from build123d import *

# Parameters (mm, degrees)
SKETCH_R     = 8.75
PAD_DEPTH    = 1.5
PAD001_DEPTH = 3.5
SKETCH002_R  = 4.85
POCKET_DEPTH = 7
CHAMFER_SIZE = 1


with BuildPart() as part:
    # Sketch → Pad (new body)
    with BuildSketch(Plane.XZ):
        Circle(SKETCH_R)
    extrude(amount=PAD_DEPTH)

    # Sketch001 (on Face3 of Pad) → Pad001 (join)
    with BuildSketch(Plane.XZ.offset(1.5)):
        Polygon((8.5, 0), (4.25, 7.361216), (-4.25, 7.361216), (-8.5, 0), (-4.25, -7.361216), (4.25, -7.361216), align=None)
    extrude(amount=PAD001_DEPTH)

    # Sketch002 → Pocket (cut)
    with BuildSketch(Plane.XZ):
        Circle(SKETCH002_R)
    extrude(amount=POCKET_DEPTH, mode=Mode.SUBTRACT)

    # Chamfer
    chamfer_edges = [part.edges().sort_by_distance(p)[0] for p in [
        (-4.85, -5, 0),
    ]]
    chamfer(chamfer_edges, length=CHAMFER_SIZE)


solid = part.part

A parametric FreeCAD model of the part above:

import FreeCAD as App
import Part
import Sketcher
from FreeCAD import Vector
Q = App.Units.Quantity


def edges_at(feature, points):
    """Names of the edges that pass closest to the given points."""
    edges = feature.Shape.Edges
    near = lambda p: min(range(len(edges)), key=lambda i: edges[i].distToShape(Part.Vertex(*p))[0])
    return sorted({f"Edge{near(p) + 1}" for p in points})

doc = App.newDocument("Part")
body = doc.addObject("PartDesign::Body", "Body")

# Sketch on XZ plane
sketch1 = body.newObject("Sketcher::SketchObject", "Sketch")
sketch1.AttachmentSupport = (doc.getObject("XZ_Plane"), [""])
sketch1.MapMode = "FlatFace"
sketch1.addGeometry(Part.Circle(Vector(0, 0, 0), Vector(0, 0, 1), 9), False)
sketch1.addConstraint(Sketcher.Constraint("Coincident", 0, 3, -1, 1))
sketch1.addConstraint(Sketcher.Constraint("Diameter", 0, 17.5))
pad1 = body.newObject("PartDesign::Pad", "Pad")
pad1.Profile = sketch1
pad1.Length = 1.5

# Sketch on XZ plane
sketch2 = body.newObject("Sketcher::SketchObject", "Sketch001")
sketch2.AttachmentSupport = (doc.getObject("XZ_Plane"), [""])
sketch2.MapMode = "FlatFace"
sketch2.AttachmentOffset = App.Placement(Vector(0, 0, 1.5), App.Rotation())
sketch2.addGeometry(Part.LineSegment(Vector(8, 0, 0), Vector(4, 7, 0)), False)
sketch2.addGeometry(Part.LineSegment(Vector(4, 7, 0), Vector(-4, 7, 0)), False)
sketch2.addGeometry(Part.LineSegment(Vector(-4, 7, 0), Vector(-8, 0, 0)), False)
sketch2.addGeometry(Part.LineSegment(Vector(-8, 0, 0), Vector(-4, -7, 0)), False)
sketch2.addGeometry(Part.LineSegment(Vector(-4, -7, 0), Vector(4, -7, 0)), False)
sketch2.addGeometry(Part.LineSegment(Vector(4, -7, 0), Vector(8, 0, 0)), False)
sketch2.addConstraint(Sketcher.Constraint("Coincident", 0, 2, 1, 1))
sketch2.addConstraint(Sketcher.Constraint("Coincident", 1, 2, 2, 1))
sketch2.addConstraint(Sketcher.Constraint("Coincident", 2, 2, 3, 1))
sketch2.addConstraint(Sketcher.Constraint("Coincident", 3, 2, 4, 1))
sketch2.addConstraint(Sketcher.Constraint("Coincident", 4, 2, 5, 1))
sketch2.addConstraint(Sketcher.Constraint("Coincident", 5, 2, 0, 1))
sketch2.addConstraint(Sketcher.Constraint("Horizontal", 1))
sketch2.addConstraint(Sketcher.Constraint("Horizontal", 4))
sketch2.addConstraint(Sketcher.Constraint("Symmetric", 0, 2, 3, 2, -1, 1))
sketch2.addConstraint(Sketcher.Constraint("Symmetric", 2, 2, 5, 2, -1, 1))
sketch2.addConstraint(Sketcher.Constraint("PointOnObject", 2, 2, -1))
sketch2.addConstraint(Sketcher.Constraint("Parallel", 2, 5))
sketch2.addConstraint(Sketcher.Constraint("Vertical", 1, 2, 3, 2))
sketch2.addConstraint(Sketcher.Constraint("Angle", 0, Q("120 deg")))
sketch2.addConstraint(Sketcher.Constraint("DistanceX", 1, 2, 1, 1, 8.5))
sketch2.addConstraint(Sketcher.Constraint("DistanceX", 2, 2, 5, 2, 17.0))
pad2 = body.newObject("PartDesign::Pad", "Pad001")
pad2.Profile = sketch2
pad2.Length = 3.5

# Sketch on XZ plane
sketch3 = body.newObject("Sketcher::SketchObject", "Sketch002")
sketch3.AttachmentSupport = (doc.getObject("XZ_Plane"), [""])
sketch3.MapMode = "FlatFace"
sketch3.addGeometry(Part.Circle(Vector(0, 0, 0), Vector(0, 0, 1), 4.8), False)
sketch3.addConstraint(Sketcher.Constraint("Coincident", 0, 3, -1, 1))
sketch3.addConstraint(Sketcher.Constraint("Diameter", 0, 9.7))
pocket1 = body.newObject("PartDesign::Pocket", "Pocket")
pocket1.Profile = sketch3
pocket1.Length = 7
pocket1.Reversed = True
doc.recompute()

chamfer = body.newObject("PartDesign::Chamfer", "Chamfer")
chamfer.Base = (pocket1, edges_at(pocket1, [(-4.85, -5, 0)]))
chamfer.Size = 1

doc.recompute()
